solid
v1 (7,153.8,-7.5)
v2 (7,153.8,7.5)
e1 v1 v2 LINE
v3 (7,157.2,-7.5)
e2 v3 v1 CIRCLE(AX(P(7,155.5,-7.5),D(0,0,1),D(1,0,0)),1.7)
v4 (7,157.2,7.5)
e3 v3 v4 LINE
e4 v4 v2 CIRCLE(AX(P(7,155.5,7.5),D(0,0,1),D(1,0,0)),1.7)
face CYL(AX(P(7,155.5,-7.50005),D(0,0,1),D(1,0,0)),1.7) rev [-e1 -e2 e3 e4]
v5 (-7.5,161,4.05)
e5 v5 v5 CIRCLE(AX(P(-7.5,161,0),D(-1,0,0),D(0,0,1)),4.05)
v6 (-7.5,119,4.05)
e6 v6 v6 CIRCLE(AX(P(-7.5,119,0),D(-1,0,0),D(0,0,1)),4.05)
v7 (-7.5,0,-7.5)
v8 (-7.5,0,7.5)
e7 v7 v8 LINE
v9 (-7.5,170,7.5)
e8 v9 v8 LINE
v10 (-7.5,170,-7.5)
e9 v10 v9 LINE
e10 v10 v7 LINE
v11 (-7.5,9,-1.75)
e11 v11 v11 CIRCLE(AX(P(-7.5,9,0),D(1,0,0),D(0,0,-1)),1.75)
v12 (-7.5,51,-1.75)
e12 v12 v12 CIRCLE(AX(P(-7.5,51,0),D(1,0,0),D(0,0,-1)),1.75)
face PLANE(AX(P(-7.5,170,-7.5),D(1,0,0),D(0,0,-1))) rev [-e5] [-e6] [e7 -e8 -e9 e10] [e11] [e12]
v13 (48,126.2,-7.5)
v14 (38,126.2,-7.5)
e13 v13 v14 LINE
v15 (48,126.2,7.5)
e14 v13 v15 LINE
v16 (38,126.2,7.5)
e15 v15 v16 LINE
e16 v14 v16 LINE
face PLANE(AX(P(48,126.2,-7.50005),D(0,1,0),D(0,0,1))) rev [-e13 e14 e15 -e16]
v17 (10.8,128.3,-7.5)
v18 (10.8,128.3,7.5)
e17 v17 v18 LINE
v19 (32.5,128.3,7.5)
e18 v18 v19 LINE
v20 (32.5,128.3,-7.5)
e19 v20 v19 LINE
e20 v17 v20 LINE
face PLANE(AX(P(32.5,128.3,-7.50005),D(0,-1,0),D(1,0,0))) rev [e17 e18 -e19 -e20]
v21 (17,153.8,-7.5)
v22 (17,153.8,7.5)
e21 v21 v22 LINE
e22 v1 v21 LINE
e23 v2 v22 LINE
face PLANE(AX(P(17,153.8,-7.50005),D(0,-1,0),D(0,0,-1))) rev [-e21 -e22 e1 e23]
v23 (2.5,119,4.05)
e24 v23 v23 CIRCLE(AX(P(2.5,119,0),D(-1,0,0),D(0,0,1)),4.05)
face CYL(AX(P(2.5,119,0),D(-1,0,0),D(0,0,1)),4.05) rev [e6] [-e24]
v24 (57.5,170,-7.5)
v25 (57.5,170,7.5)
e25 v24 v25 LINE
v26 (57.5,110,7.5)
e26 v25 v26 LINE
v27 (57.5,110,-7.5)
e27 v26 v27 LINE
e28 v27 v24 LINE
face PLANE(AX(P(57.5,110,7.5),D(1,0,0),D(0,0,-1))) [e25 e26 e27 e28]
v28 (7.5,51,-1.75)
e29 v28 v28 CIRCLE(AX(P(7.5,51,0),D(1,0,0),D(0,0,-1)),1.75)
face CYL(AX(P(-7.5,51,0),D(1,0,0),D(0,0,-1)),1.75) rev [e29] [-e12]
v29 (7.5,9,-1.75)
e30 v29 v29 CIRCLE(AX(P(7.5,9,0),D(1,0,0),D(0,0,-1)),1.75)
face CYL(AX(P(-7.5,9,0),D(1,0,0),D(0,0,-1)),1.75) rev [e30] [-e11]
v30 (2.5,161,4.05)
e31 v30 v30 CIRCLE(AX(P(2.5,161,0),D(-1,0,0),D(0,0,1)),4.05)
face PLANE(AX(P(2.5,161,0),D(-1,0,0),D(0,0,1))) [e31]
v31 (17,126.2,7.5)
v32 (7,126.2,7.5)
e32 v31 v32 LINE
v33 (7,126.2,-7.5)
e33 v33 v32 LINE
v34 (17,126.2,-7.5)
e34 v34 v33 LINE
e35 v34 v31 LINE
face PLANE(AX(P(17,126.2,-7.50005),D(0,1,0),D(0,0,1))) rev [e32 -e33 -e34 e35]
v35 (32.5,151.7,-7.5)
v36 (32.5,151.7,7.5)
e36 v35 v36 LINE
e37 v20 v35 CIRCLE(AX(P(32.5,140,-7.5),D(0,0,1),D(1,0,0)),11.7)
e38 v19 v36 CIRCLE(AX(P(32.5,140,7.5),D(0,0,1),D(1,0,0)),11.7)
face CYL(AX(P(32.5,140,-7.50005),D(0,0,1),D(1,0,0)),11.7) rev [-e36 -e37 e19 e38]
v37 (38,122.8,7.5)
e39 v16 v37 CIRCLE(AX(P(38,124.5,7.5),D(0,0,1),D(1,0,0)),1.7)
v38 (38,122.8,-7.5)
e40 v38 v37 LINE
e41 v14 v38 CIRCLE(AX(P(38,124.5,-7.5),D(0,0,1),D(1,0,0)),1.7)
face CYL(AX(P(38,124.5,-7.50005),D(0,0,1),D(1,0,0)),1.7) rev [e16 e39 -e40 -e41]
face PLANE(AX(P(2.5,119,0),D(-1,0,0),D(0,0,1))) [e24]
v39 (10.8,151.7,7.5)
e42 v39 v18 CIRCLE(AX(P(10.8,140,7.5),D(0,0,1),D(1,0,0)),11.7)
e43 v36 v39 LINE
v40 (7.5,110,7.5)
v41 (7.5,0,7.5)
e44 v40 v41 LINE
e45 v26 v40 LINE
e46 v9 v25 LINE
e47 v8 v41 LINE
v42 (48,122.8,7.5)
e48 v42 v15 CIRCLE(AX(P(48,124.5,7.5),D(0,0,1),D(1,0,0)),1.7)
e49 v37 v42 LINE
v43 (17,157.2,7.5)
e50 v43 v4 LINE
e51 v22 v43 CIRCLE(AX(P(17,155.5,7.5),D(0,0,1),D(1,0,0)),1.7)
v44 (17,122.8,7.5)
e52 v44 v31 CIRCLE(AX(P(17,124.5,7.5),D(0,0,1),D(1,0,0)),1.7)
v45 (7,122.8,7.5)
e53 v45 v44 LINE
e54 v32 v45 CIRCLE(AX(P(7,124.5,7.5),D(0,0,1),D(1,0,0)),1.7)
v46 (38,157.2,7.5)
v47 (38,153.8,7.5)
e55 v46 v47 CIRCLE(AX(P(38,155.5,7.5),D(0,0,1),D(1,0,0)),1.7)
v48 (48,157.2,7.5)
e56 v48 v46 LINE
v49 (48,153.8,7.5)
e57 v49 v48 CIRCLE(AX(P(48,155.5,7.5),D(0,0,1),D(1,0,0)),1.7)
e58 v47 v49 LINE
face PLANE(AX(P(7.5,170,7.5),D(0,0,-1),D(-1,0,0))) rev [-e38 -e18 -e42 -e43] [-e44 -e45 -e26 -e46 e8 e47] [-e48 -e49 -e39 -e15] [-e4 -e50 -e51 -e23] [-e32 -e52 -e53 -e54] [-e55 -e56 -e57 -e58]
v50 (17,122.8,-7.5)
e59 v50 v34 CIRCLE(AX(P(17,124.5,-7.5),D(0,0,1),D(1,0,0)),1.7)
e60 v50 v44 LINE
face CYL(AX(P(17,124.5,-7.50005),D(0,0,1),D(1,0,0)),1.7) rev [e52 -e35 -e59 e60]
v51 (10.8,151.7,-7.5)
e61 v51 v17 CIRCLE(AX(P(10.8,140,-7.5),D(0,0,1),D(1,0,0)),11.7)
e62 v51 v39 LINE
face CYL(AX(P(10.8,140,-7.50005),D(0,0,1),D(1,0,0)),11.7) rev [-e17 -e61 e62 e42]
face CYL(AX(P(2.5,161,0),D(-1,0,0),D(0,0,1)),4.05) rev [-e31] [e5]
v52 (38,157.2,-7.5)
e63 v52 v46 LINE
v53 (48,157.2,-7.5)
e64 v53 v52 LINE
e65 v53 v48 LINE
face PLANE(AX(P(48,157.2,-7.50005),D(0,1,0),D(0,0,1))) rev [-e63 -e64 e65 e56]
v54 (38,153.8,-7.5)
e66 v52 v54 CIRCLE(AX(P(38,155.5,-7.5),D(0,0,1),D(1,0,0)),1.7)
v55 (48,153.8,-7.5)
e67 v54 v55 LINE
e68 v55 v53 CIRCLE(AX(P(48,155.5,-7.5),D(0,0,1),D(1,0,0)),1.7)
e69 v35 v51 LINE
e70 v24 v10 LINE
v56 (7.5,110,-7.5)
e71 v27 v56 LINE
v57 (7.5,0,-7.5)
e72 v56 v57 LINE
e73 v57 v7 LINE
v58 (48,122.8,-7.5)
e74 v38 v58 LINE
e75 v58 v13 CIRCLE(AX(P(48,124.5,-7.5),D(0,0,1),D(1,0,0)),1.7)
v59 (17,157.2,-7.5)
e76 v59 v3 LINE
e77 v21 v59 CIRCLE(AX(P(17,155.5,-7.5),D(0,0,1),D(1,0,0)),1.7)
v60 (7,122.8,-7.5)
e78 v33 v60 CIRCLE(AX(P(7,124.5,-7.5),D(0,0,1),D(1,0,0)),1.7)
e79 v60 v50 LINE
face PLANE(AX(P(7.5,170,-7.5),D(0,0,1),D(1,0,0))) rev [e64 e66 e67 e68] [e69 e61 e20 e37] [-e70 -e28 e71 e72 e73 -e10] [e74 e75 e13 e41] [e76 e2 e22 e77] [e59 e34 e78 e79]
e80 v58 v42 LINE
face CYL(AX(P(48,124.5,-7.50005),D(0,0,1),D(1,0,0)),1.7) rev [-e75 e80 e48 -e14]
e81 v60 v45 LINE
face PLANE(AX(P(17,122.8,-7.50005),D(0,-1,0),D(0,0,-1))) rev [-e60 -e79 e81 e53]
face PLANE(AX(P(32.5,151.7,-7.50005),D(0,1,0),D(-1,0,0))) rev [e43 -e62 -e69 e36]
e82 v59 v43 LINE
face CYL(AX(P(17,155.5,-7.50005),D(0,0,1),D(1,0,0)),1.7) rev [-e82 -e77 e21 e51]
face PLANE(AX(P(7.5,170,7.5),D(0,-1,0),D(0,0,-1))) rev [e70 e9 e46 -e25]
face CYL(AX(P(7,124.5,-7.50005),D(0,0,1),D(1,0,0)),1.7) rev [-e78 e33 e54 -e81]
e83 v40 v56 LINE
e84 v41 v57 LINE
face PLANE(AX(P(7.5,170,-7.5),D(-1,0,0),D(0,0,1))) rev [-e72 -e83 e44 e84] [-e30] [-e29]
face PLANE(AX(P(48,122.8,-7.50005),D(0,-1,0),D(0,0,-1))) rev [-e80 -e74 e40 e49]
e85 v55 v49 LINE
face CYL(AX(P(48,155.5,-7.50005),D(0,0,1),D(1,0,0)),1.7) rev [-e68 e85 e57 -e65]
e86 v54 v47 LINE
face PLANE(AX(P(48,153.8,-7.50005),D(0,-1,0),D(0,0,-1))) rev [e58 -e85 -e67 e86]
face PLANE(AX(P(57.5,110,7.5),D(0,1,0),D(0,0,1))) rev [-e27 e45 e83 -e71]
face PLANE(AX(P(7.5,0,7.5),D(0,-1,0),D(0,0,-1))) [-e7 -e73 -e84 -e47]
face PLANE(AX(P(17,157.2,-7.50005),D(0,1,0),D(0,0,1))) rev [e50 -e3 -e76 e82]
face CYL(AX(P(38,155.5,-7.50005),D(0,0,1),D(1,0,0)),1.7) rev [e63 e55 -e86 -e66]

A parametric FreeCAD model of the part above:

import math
import FreeCAD as App
import Part
import Sketcher

doc = App.newDocument("Part")
body = doc.addObject("PartDesign::Body", "Body")

sketch1 = body.newObject("Sketcher::SketchObject", "Sketch")
sketch1.AttachmentSupport = (doc.getObject("XZ_Plane"), [""])
sketch1.MapMode = "FlatFace"
sketch1.addGeometry(Part.LineSegment(App.Vector(-8, -8, 0), App.Vector(-8, 8, 0)), False)
sketch1.addGeometry(Part.LineSegment(App.Vector(-8, 8, 0), App.Vector(8, 8, 0)), False)
sketch1.addGeometry(Part.LineSegment(App.Vector(8, 8, 0), App.Vector(8, -8, 0)), False)
sketch1.addGeometry(Part.LineSegment(App.Vector(8, -8, 0), App.Vector(-8, -8, 0)), False)
sketch1.addConstraint(Sketcher.Constraint("Coincident", 0, 2, 1, 1))
sketch1.addConstraint(Sketcher.Constraint("Coincident", 1, 2, 2, 1))
sketch1.addConstraint(Sketcher.Constraint("Coincident", 2, 2, 3, 1))
sketch1.addConstraint(Sketcher.Constraint("Coincident", 3, 2, 0, 1))
sketch1.addConstraint(Sketcher.Constraint("Vertical", 0))
sketch1.addConstraint(Sketcher.Constraint("Horizontal", 1))
sketch1.addConstraint(Sketcher.Constraint("Vertical", 2))
sketch1.addConstraint(Sketcher.Constraint("Horizontal", 3))
sketch1.addConstraint(Sketcher.Constraint("Symmetric", 0, 2, 2, 2, -1, 1))
sketch1.addConstraint(Sketcher.Constraint("Equal", 3, 0))
sketch1.addConstraint(Sketcher.Constraint("DistanceX", 1, 1, 1, 2, 15.0))
pad1 = body.newObject("PartDesign::Pad", "Pad")
pad1.Profile = sketch1
pad1.Length = 170
pad1.Reversed = True

sketch2 = body.newObject("Sketcher::SketchObject", "Sketch001")
sketch2.AttachmentSupport = (doc.getObject("YZ_Plane"), [""])
sketch2.MapMode = "FlatFace"
sketch2.AttachmentOffset = App.Placement(App.Vector(0, 0, 7.5), App.Rotation())
sketch2.addGeometry(Part.Circle(App.Vector(9, 0, 0), App.Vector(0, 0, 1), 1.8), False)
sketch2.addGeometry(Part.Circle(App.Vector(51, 0, 0), App.Vector(0, 0, 1), 1.8), False)
sketch2.addConstraint(Sketcher.Constraint("Equal", 0, 1))
sketch2.addConstraint(Sketcher.Constraint("PointOnObject", 0, 3, -1))
sketch2.addConstraint(Sketcher.Constraint("PointOnObject", 1, 3, -1))
sketch2.addConstraint(Sketcher.Constraint("Diameter", 0, 3.5))
sketch2.addConstraint(Sketcher.Constraint("DistanceX", -1, 1, 0, 3, 9.0))
sketch2.addConstraint(Sketcher.Constraint("DistanceX", -1, 1, 1, 3, 51.0))
pocket1 = body.newObject("PartDesign::Pocket", "Pocket")
pocket1.Profile = sketch2
pocket1.Type = "ThroughAll"

sketch3 = body.newObject("Sketcher::SketchObject", "Sketch002")
sketch3.AttachmentSupport = (doc.getObject("YZ_Plane"), [""])
sketch3.MapMode = "FlatFace"
sketch3.AttachmentOffset = App.Placement(App.Vector(0, 0, 7.5), App.Rotation())
sketch3.addGeometry(Part.LineSegment(App.Vector(170, 8, 0), App.Vector(110, 8, 0)), False)
sketch3.addGeometry(Part.LineSegment(App.Vector(110, 8, 0), App.Vector(110, -8, 0)), False)
sketch3.addGeometry(Part.LineSegment(App.Vector(110, -8, 0), App.Vector(170, -8, 0)), False)
sketch3.addGeometry(Part.LineSegment(App.Vector(170, -8, 0), App.Vector(170, 8, 0)), False)
sketch3.addConstraint(Sketcher.Constraint("Coincident", 0, 2, 1, 1))
sketch3.addConstraint(Sketcher.Constraint("Coincident", 1, 2, 2, 1))
sketch3.addConstraint(Sketcher.Constraint("Coincident", 2, 2, 3, 1))
sketch3.addConstraint(Sketcher.Constraint("Coincident", 3, 2, 0, 1))
sketch3.addConstraint(Sketcher.Constraint("Horizontal", 0))
sketch3.addConstraint(Sketcher.Constraint("Vertical", 1))
sketch3.addConstraint(Sketcher.Constraint("Horizontal", 2))
sketch3.addConstraint(Sketcher.Constraint("Vertical", 3))
sketch3.addConstraint(Sketcher.Constraint("DistanceX", 0, 2, 0, 1, 60.0))
sketch3.addConstraint(Sketcher.Constraint("DistanceY", 1, 2, 1, 1, 15.0))
sketch3.addConstraint(Sketcher.Constraint("DistanceX", -1, 1, 0, 2, 110.0))
sketch3.addConstraint(Sketcher.Constraint("DistanceY", -1, 1, 0, 2, 7.5))
pad2 = body.newObject("PartDesign::Pad", "Pad001")
pad2.Profile = sketch3
pad2.Length = 50

sketch4 = body.newObject("Sketcher::SketchObject", "Sketch003")
sketch4.AttachmentSupport = (doc.getObject("YZ_Plane"), [""])
sketch4.MapMode = "FlatFace"
sketch4.AttachmentOffset = App.Placement(App.Vector(0, 0, 57.5), App.Rotation())
sketch4.addGeometry(Part.LineSegment(App.Vector(161, 8, 0), App.Vector(139, 8, 0)), False)
sketch4.addGeometry(Part.LineSegment(App.Vector(139, 8, 0), App.Vector(139, -8, 0)), False)
sketch4.addGeometry(Part.LineSegment(App.Vector(139, -8, 0), App.Vector(161, -8, 0)), False)
sketch4.addGeometry(Part.LineSegment(App.Vector(161, -8, 0), App.Vector(161, 8, 0)), False)
sketch4.addConstraint(Sketcher.Constraint("Coincident", 0, 2, 1, 1))
sketch4.addConstraint(Sketcher.Constraint("Coincident", 1, 2, 2, 1))
sketch4.addConstraint(Sketcher.Constraint("Coincident", 2, 2, 3, 1))
sketch4.addConstraint(Sketcher.Constraint("Coincident", 3, 2, 0, 1))
sketch4.addConstraint(Sketcher.Constraint("Horizontal", 0))
sketch4.addConstraint(Sketcher.Constraint("Vertical", 1))
sketch4.addConstraint(Sketcher.Constraint("Horizontal", 2))
sketch4.addConstraint(Sketcher.Constraint("Vertical", 3))
sketch4.addConstraint(Sketcher.Constraint("DistanceX", 0, 2, 0, 1, 22.0))
sketch4.addConstraint(Sketcher.Constraint("DistanceY", 1, 2, 1, 1, 15.0))
sketch4.addConstraint(Sketcher.Constraint("DistanceX", -1, 1, 0, 2, 139.0))
sketch4.addConstraint(Sketcher.Constraint("DistanceY", -1, 1, 0, 2, 7.5))
pocket2 = body.newObject("PartDesign::Pocket", "Pocket001")
pocket2.Profile = sketch4
pocket2.Length = 31

sketch5 = body.newObject("Sketcher::SketchObject", "Sketch004")
sketch5.AttachmentSupport = (doc.getObject("YZ_Plane"), [""])
sketch5.MapMode = "FlatFace"
sketch5.AttachmentOffset = App.Placement(App.Vector(0, 0, -7.5), App.Rotation())
sketch5.addGeometry(Part.Circle(App.Vector(161, 0, 0), App.Vector(0, 0, 1), 4), False)
sketch5.addGeometry(Part.Circle(App.Vector(119, 0, 0), App.Vector(0, 0, 1), 4), False)
sketch5.addConstraint(Sketcher.Constraint("Equal", 0, 1))
sketch5.addConstraint(Sketcher.Constraint("PointOnObject", 0, 3, -1))
sketch5.addConstraint(Sketcher.Constraint("PointOnObject", 1, 3, -1))
sketch5.addConstraint(Sketcher.Constraint("Diameter", 0, 8.1))
sketch5.addConstraint(Sketcher.Constraint("DistanceX", -1, 1, 0, 3, 161.0))
sketch5.addConstraint(Sketcher.Constraint("DistanceX", -1, 1, 1, 3, 119.0))
pocket3 = body.newObject("PartDesign::Pocket", "Pocket002")
pocket3.Profile = sketch5
pocket3.Length = 10
pocket3.Reversed = True

sketch6 = body.newObject("Sketcher::SketchObject", "Sketch005")
sketch6.AttachmentSupport = (doc.getObject("YZ_Plane"), [""])
sketch6.MapMode = "FlatFace"
sketch6.AttachmentOffset = App.Placement(App.Vector(0, 0, 26.5), App.Rotation())
sketch6.addGeometry(Part.LineSegment(App.Vector(161, 8, 0), App.Vector(139, 8, 0)), False)
sketch6.addGeometry(Part.LineSegment(App.Vector(139, 8, 0), App.Vector(139, -8, 0)), False)
sketch6.addGeometry(Part.LineSegment(App.Vector(139, -8, 0), App.Vector(161, -8, 0)), False)
sketch6.addGeometry(Part.LineSegment(App.Vector(161, -8, 0), App.Vector(161, 8, 0)), False)
sketch6.addConstraint(Sketcher.Constraint("Coincident", 0, 2, 1, 1))
sketch6.addConstraint(Sketcher.Constraint("Coincident", 1, 2, 2, 1))
sketch6.addConstraint(Sketcher.Constraint("Coincident", 2, 2, 3, 1))
sketch6.addConstraint(Sketcher.Constraint("Coincident", 3, 2, 0, 1))
sketch6.addConstraint(Sketcher.Constraint("Horizontal", 0))
sketch6.addConstraint(Sketcher.Constraint("Vertical", 1))
sketch6.addConstraint(Sketcher.Constraint("Horizontal", 2))
sketch6.addConstraint(Sketcher.Constraint("Vertical", 3))
sketch6.addConstraint(Sketcher.Constraint("DistanceX", 0, 2, 0, 1, 22.0))
sketch6.addConstraint(Sketcher.Constraint("DistanceY", 1, 2, 1, 1, 15.0))
sketch6.addConstraint(Sketcher.Constraint("DistanceX", -1, 1, 0, 2, 139.0))
sketch6.addConstraint(Sketcher.Constraint("DistanceY", -1, 1, 0, 2, 7.5))
pad3 = body.newObject("PartDesign::Pad", "Pad002")
pad3.Profile = sketch6
pad3.Length = 31

sketch7 = body.newObject("Sketcher::SketchObject", "Sketch006")
sketch7.AttachmentSupport = (doc.getObject("XY_Plane"), [""])
sketch7.MapMode = "FlatFace"
sketch7.AttachmentOffset = App.Placement(App.Vector(0, 0, 7.5), App.Rotation())
sketch7.addGeometry(Part.LineSegment(App.Vector(7, 122.8, 0), App.Vector(17, 122.8, 0)), False)
sketch7.addGeometry(Part.ArcOfCircle(Part.Circle(App.Vector(17, 124.5, 0), App.Vector(0, 0, 1), 1.7), math.radians(-90), math.radians(90)), False)
sketch7.addGeometry(Part.LineSegment(App.Vector(17, 126.2, 0), App.Vector(7, 126.2, 0)), False)
sketch7.addGeometry(Part.ArcOfCircle(Part.Circle(App.Vector(7, 124.5, 0), App.Vector(0, 0, 1), 1.7), math.radians(90), math.radians(270)), False)
sketch7.addGeometry(Part.LineSegment(App.Vector(10.8, 128.3, 0), App.Vector(32.5, 128.3, 0)), False)
sketch7.addGeometry(Part.ArcOfCircle(Part.Circle(App.Vector(32.5, 140, 0), App.Vector(0, 0, 1), 11.7), math.radians(-90), math.radians(90)), False)
sketch7.addGeometry(Part.LineSegment(App.Vector(32.5, 151.7, 0), App.Vector(10.8, 151.7, 0)), False)
sketch7.addGeometry(Part.ArcOfCircle(Part.Circle(App.Vector(10.8, 140, 0), App.Vector(0, 0, 1), 11.7), math.radians(90), math.radians(270)), False)
sketch7.addGeometry(Part.LineSegment(App.Vector(38, 122.8, 0), App.Vector(48, 122.8, 0)), False)
sketch7.addGeometry(Part.ArcOfCircle(Part.Circle(App.Vector(48, 124.5, 0), App.Vector(0, 0, 1), 1.7), math.radians(-90), math.radians(90)), False)
sketch7.addGeometry(Part.LineSegment(App.Vector(48, 126.2, 0), App.Vector(38, 126.2, 0)), False)
sketch7.addGeometry(Part.ArcOfCircle(Part.Circle(App.Vector(38, 124.5, 0), App.Vector(0, 0, 1), 1.7), math.radians(90), math.radians(270)), False)
sketch7.addGeometry(Part.LineSegment(App.Vector(38, 153.8, 0), App.Vector(48, 153.8, 0)), False)
sketch7.addGeometry(Part.ArcOfCircle(Part.Circle(App.Vector(48, 155.5, 0), App.Vector(0, 0, 1), 1.7), math.radians(-90), math.radians(90)), False)
sketch7.addGeometry(Part.LineSegment(App.Vector(48, 157.2, 0), App.Vector(38, 157.2, 0)), False)
sketch7.addGeometry(Part.ArcOfCircle(Part.Circle(App.Vector(38, 155.5, 0), App.Vector(0, 0, 1), 1.7), math.radians(90), math.radians(270)), False)
sketch7.addGeometry(Part.LineSegment(App.Vector(7, 153.8, 0), App.Vector(17, 153.8, 0)), False)
sketch7.addGeometry(Part.ArcOfCircle(Part.Circle(App.Vector(17, 155.5, 0), App.Vector(0, 0, 1), 1.7), math.radians(-90), math.radians(90)), False)
sketch7.addGeometry(Part.LineSegment(App.Vector(17, 157.2, 0), App.Vector(7, 157.2, 0)), False)
sketch7.addGeometry(Part.ArcOfCircle(Part.Circle(App.Vector(7, 155.5, 0), App.Vector(0, 0, 1), 1.7), math.radians(90), math.radians(270)), False)
sketch7.addConstraint(Sketcher.Constraint("Tangent", 0, 2, 1, 1))
sketch7.addConstraint(Sketcher.Constraint("Tangent", 1, 2, 2, 1))
sketch7.addConstraint(Sketcher.Constraint("Tangent", 2, 2, 3, 1))
sketch7.addConstraint(Sketcher.Constraint("Tangent", 3, 2, 0, 1))
sketch7.addConstraint(Sketcher.Constraint("Tangent", 4, 2, 5, 1))
sketch7.addConstraint(Sketcher.Constraint("Tangent", 5, 2, 6, 1))
sketch7.addConstraint(Sketcher.Constraint("Tangent", 6, 2, 7, 1))
sketch7.addConstraint(Sketcher.Constraint("Tangent", 7, 2, 4, 1))
sketch7.addConstraint(Sketcher.Constraint("Tangent", 8, 2, 9, 1))
sketch7.addConstraint(Sketcher.Constraint("Tangent", 9, 2, 10, 1))
sketch7.addConstraint(Sketcher.Constraint("Tangent", 10, 2, 11, 1))
sketch7.addConstraint(Sketcher.Constraint("Tangent", 11, 2, 8, 1))
sketch7.addConstraint(Sketcher.Constraint("Tangent", 12, 2, 13, 1))
sketch7.addConstraint(Sketcher.Constraint("Tangent", 13, 2, 14, 1))
sketch7.addConstraint(Sketcher.Constraint("Tangent", 14, 2, 15, 1))
sketch7.addConstraint(Sketcher.Constraint("Tangent", 15, 2, 12, 1))
sketch7.addConstraint(Sketcher.Constraint("Tangent", 16, 2, 17, 1))
sketch7.addConstraint(Sketcher.Constraint("Tangent", 17, 2, 18, 1))
sketch7.addConstraint(Sketcher.Constraint("Tangent", 18, 2, 19, 1))
sketch7.addConstraint(Sketcher.Constraint("Tangent", 19, 2, 16, 1))
sketch7.addConstraint(Sketcher.Constraint("Horizontal", 0))
sketch7.addConstraint(Sketcher.Constraint("Horizontal", 2))
sketch7.addConstraint(Sketcher.Constraint("Horizontal", 4))
sketch7.addConstraint(Sketcher.Constraint("Horizontal", 6))
sketch7.addConstraint(Sketcher.Constraint("Horizontal", 8))
sketch7.addConstraint(Sketcher.Constraint("Horizontal", 10))
sketch7.addConstraint(Sketcher.Constraint("Horizontal", 12))
sketch7.addConstraint(Sketcher.Constraint("Horizontal", 14))
sketch7.addConstraint(Sketcher.Constraint("Horizontal", 16))
sketch7.addConstraint(Sketcher.Constraint("Horizontal", 18))
sketch7.addConstraint(Sketcher.Constraint("Equal", 3, 9))
sketch7.addConstraint(Sketcher.Constraint("Equal", 11, 13))
sketch7.addConstraint(Sketcher.Constraint("Equal", 15, 17))
sketch7.addConstraint(Sketcher.Constraint("Horizontal", 3, 3, 9, 3))
sketch7.addConstraint(Sketcher.Constraint("Horizontal", 15, 3, 17, 3))
sketch7.addConstraint(Sketcher.Constraint("Vertical", 9, 3, 13, 3))
sketch7.addConstraint(Sketcher.Constraint("Vertical", 11, 3, 15, 3))
sketch7.addConstraint(Sketcher.Constraint("Vertical", 1, 3, 17, 3))
sketch7.addConstraint(Sketcher.Constraint("Vertical", 3, 3, 19, 3))
sketch7.addConstraint(Sketcher.Constraint("Equal", 2, 8))
sketch7.addConstraint(Sketcher.Constraint("Radius", 1, 1.7))
sketch7.addConstraint(Sketcher.Constraint("Radius", 5, 11.7))
sketch7.addConstraint(Sketcher.Constraint("DistanceX", 0, 1, 0, 2, 10.0))
sketch7.addConstraint(Sketcher.Constraint("DistanceX", 4, 1, 4, 2, 21.7))
sketch7.addConstraint(Sketcher.Constraint("DistanceX", -1, 1, 1, 3, 17.0))
sketch7.addConstraint(Sketcher.Constraint("DistanceY", -1, 1, 5, 3, 140.0))
sketch7.addConstraint(Sketcher.Constraint("DistanceX", -1, 1, 9, 3, 48.0))
sketch7.addConstraint(Sketcher.Constraint("DistanceY", 9, 3, 13, 3, 31.0))
sketch7.addConstraint(Sketcher.Constraint("DistanceY", -1, 1, 1, 3, 124.5))
sketch7.addConstraint(Sketcher.Constraint("DistanceX", -1, 1, 5, 3, 32.5))
pocket4 = body.newObject("PartDesign::Pocket", "Pocket003")
pocket4.Profile = sketch7
pocket4.Type = "ThroughAll"

doc.recompute()
